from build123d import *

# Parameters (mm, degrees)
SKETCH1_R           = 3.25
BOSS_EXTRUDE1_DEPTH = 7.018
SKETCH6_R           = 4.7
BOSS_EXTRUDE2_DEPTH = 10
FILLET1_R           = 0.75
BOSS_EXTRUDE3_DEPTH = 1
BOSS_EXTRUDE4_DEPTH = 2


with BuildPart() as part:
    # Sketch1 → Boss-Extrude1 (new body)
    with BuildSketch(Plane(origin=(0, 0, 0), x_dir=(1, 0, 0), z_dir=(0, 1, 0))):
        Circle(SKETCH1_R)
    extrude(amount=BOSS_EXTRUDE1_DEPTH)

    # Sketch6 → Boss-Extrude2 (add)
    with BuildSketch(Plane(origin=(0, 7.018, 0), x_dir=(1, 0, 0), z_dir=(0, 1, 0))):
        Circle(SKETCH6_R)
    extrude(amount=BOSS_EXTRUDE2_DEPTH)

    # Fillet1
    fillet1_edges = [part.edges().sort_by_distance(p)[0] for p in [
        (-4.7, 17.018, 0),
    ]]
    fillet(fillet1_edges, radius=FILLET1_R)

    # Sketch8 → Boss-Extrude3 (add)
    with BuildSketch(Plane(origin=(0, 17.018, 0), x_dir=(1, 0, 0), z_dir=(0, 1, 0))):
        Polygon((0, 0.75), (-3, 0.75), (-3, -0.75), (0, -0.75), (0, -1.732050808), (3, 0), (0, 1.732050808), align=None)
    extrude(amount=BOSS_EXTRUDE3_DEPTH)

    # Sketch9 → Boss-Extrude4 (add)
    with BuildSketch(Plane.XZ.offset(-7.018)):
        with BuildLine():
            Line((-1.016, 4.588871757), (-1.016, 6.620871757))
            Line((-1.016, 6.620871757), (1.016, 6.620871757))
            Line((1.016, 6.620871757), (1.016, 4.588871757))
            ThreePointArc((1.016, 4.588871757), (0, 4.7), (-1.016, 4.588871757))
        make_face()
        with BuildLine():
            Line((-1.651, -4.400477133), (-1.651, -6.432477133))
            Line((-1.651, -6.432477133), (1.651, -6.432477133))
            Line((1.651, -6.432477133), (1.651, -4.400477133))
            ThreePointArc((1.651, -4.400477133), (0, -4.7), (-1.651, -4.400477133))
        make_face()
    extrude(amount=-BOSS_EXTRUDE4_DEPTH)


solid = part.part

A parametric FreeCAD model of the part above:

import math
import FreeCAD as App
import Part
import Sketcher
from FreeCAD import Vector
Q = App.Units.Quantity


def edges_at(feature, points):
    """Names of the edges that pass closest to the given points."""
    edges = feature.Shape.Edges
    near = lambda p: min(range(len(edges)), key=lambda i: edges[i].distToShape(Part.Vertex(*p))[0])
    return sorted({f"Edge{near(p) + 1}" for p in points})

doc = App.newDocument("Part")
body = doc.addObject("PartDesign::Body", "Body")

sketch1 = body.newObject("Sketcher::SketchObject", "Sketch")
sketch1.AttachmentSupport = (doc.getObject("XZ_Plane"), [""])
sketch1.MapMode = "FlatFace"
sketch1.addGeometry(Part.Circle(Vector(0, 0, 0), Vector(0, 0, 1), 3.25), False)
sketch1.addConstraint(Sketcher.Constraint("Coincident", 0, 3, -1, 1))
sketch1.addConstraint(Sketcher.Constraint("Diameter", 0, 6.5))
pad1 = body.newObject("PartDesign::Pad", "Pad")
pad1.Profile = sketch1
pad1.Length = 7.018
pad1.Reversed = True

sketch2 = body.newObject("Sketcher::SketchObject", "Sketch001")
sketch2.AttachmentSupport = (doc.getObject("XZ_Plane"), [""])
sketch2.MapMode = "FlatFace"
sketch2.AttachmentOffset = App.Placement(Vector(0, 0, -7.018), App.Rotation())
sketch2.addGeometry(Part.Circle(Vector(0, 0, 0), Vector(0, 0, 1), 4.7), False)
sketch2.addConstraint(Sketcher.Constraint("Coincident", 0, 3, -1, 1))
sketch2.addConstraint(Sketcher.Constraint("Diameter", 0, 9.4))
pad2 = body.newObject("PartDesign::Pad", "Pad001")
pad2.Profile = sketch2
pad2.Length = 10
pad2.Reversed = True
doc.recompute()

fillet = body.newObject("PartDesign::Fillet", "Fillet")
fillet.Base = (pad2, edges_at(pad2, [(-4.7, 17.018, 0)]))
fillet.Radius = 0.75

sketch3 = body.newObject("Sketcher::SketchObject", "Sketch002")
sketch3.AttachmentSupport = (doc.getObject("XZ_Plane"), [""])
sketch3.MapMode = "FlatFace"
sketch3.AttachmentOffset = App.Placement(Vector(0, 0, -17.018), App.Rotation())
sketch3.addGeometry(Part.LineSegment(Vector(0, -0.75, 0), Vector(-3, -0.75, 0)), False)
sketch3.addGeometry(Part.LineSegment(Vector(-3, -0.75, 0), Vector(-3, 0.75, 0)), False)
sketch3.addGeometry(Part.LineSegment(Vector(-3, 0.75, 0), Vector(0, 0.75, 0)), False)
sketch3.addGeometry(Part.LineSegment(Vector(0, 0.75, 0), Vector(0, 1.732051, 0)), False)
sketch3.addGeometry(Part.LineSegment(Vector(0, 1.732051, 0), Vector(3, 0, 0)), False)
sketch3.addGeometry(Part.LineSegment(Vector(3, 0, 0), Vector(0, -1.732051, 0)), False)
sketch3.addGeometry(Part.LineSegment(Vector(0, -1.732051, 0), Vector(0, -0.75, 0)), False)
sketch3.addConstraint(Sketcher.Constraint("Coincident", 0, 2, 1, 1))
sketch3.addConstraint(Sketcher.Constraint("Coincident", 1, 2, 2, 1))
sketch3.addConstraint(Sketcher.Constraint("Coincident", 2, 2, 3, 1))
sketch3.addConstraint(Sketcher.Constraint("Coincident", 3, 2, 4, 1))
sketch3.addConstraint(Sketcher.Constraint("Coincident", 4, 2, 5, 1))
sketch3.addConstraint(Sketcher.Constraint("Coincident", 5, 2, 6, 1))
sketch3.addConstraint(Sketcher.Constraint("Coincident", 6, 2, 0, 1))
sketch3.addConstraint(Sketcher.Constraint("Horizontal", 0))
sketch3.addConstraint(Sketcher.Constraint("Vertical", 1))
sketch3.addConstraint(Sketcher.Constraint("Horizontal", 2))
sketch3.addConstraint(Sketcher.Constraint("Vertical", 3))
sketch3.addConstraint(Sketcher.Constraint("Vertical", 6))
sketch3.addConstraint(Sketcher.Constraint("Symmetric", 3, 2, 5, 2, -1, 1))
sketch3.addConstraint(Sketcher.Constraint("Symmetric", 2, 2, 6, 2, -1))
sketch3.addConstraint(Sketcher.Constraint("PointOnObject", 4, 2, -1))
sketch3.addConstraint(Sketcher.Constraint("DistanceX", 0, 2, 0, 1, 3.0))
sketch3.addConstraint(Sketcher.Constraint("Angle", 4, Q("-30 deg")))
sketch3.addConstraint(Sketcher.Constraint("DistanceY", 1, 1, 1, 2, 1.5))
sketch3.addConstraint(Sketcher.Constraint("DistanceX", -1, 1, 4, 2, 3.0))
pad3 = body.newObject("PartDesign::Pad", "Pad002")
pad3.Profile = sketch3
pad3.Length = 1
pad3.Reversed = True

sketch4 = body.newObject("Sketcher::SketchObject", "Sketch003")
sketch4.AttachmentSupport = (doc.getObject("XZ_Plane"), [""])
sketch4.MapMode = "FlatFace"
sketch4.AttachmentOffset = App.Placement(Vector(0, 0, -7.018), App.Rotation())
sketch4.addGeometry(Part.LineSegment(Vector(-1.016, 6.620872, 0), Vector(-1.016, 4.588872, 0)), False)
sketch4.addGeometry(Part.ArcOfCircle(Part.Circle(Vector(0, 0, 0), Vector(0, 0, 1), 4.7), math.radians(77.51581), math.radians(102.48419)), False)
sketch4.addGeometry(Part.LineSegment(Vector(1.016, 4.588872, 0), Vector(1.016, 6.620872, 0)), False)
sketch4.addGeometry(Part.LineSegment(Vector(1.016, 6.620872, 0), Vector(-1.016, 6.620872, 0)), False)
sketch4.addGeometry(Part.LineSegment(Vector(-1.651, -4.400477, 0), Vector(-1.651, -6.432477, 0)), False)
sketch4.addGeometry(Part.LineSegment(Vector(-1.651, -6.432477, 0), Vector(1.651, -6.432477, 0)), False)
sketch4.addGeometry(Part.LineSegment(Vector(1.651, -6.432477, 0), Vector(1.651, -4.400477, 0)), False)
sketch4.addGeometry(Part.ArcOfCircle(Part.Circle(Vector(0, 0, 0), Vector(0, 0, 1), 4.7), math.radians(-110.565417), math.radians(-69.434583)), False)
sketch4.addConstraint(Sketcher.Constraint("Coincident", 0, 2, 1, 2))
sketch4.addConstraint(Sketcher.Constraint("Coincident", 1, 1, 2, 1))
sketch4.addConstraint(Sketcher.Constraint("Coincident", 2, 2, 3, 1))
sketch4.addConstraint(Sketcher.Constraint("Coincident", 3, 2, 0, 1))
sketch4.addConstraint(Sketcher.Constraint("Coincident", 4, 2, 5, 1))
sketch4.addConstraint(Sketcher.Constraint("Coincident", 5, 2, 6, 1))
sketch4.addConstraint(Sketcher.Constraint("Coincident", 6, 2, 7, 2))
sketch4.addConstraint(Sketcher.Constraint("Coincident", 7, 1, 4, 1))
sketch4.addConstraint(Sketcher.Constraint("Vertical", 0))
sketch4.addConstraint(Sketcher.Constraint("Vertical", 2))
sketch4.addConstraint(Sketcher.Constraint("Horizontal", 3))
sketch4.addConstraint(Sketcher.Constraint("Vertical", 4))
sketch4.addConstraint(Sketcher.Constraint("Horizontal", 5))
sketch4.addConstraint(Sketcher.Constraint("Vertical", 6))
sketch4.addConstraint(Sketcher.Constraint("Coincident", 1, 3, -1, 1))
sketch4.addConstraint(Sketcher.Constraint("Coincident", 7, 3, -1, 1))
sketch4.addConstraint(Sketcher.Constraint("Equal", 1, 7))
sketch4.addConstraint(Sketcher.Constraint("Horizontal", 0, 2, 1, 1))
sketch4.addConstraint(Sketcher.Constraint("Horizontal", 6, 2, 7, 1))
sketch4.addConstraint(Sketcher.Constraint("Equal", 3, 0))
sketch4.addConstraint(Sketcher.Constraint("Equal", 2, 4))
sketch4.addConstraint(Sketcher.Constraint("Radius", 1, 4.7))
sketch4.addConstraint(Sketcher.Constraint("DistanceX", 3, 2, 3, 1, 2.032))
sketch4.addConstraint(Sketcher.Constraint("DistanceX", 5, 1, 5, 2, 3.302))
pad4 = body.newObject("PartDesign::Pad", "Pad003")
pad4.Profile = sketch4
pad4.Length = 2
pad4.Reversed = True

doc.recompute()
